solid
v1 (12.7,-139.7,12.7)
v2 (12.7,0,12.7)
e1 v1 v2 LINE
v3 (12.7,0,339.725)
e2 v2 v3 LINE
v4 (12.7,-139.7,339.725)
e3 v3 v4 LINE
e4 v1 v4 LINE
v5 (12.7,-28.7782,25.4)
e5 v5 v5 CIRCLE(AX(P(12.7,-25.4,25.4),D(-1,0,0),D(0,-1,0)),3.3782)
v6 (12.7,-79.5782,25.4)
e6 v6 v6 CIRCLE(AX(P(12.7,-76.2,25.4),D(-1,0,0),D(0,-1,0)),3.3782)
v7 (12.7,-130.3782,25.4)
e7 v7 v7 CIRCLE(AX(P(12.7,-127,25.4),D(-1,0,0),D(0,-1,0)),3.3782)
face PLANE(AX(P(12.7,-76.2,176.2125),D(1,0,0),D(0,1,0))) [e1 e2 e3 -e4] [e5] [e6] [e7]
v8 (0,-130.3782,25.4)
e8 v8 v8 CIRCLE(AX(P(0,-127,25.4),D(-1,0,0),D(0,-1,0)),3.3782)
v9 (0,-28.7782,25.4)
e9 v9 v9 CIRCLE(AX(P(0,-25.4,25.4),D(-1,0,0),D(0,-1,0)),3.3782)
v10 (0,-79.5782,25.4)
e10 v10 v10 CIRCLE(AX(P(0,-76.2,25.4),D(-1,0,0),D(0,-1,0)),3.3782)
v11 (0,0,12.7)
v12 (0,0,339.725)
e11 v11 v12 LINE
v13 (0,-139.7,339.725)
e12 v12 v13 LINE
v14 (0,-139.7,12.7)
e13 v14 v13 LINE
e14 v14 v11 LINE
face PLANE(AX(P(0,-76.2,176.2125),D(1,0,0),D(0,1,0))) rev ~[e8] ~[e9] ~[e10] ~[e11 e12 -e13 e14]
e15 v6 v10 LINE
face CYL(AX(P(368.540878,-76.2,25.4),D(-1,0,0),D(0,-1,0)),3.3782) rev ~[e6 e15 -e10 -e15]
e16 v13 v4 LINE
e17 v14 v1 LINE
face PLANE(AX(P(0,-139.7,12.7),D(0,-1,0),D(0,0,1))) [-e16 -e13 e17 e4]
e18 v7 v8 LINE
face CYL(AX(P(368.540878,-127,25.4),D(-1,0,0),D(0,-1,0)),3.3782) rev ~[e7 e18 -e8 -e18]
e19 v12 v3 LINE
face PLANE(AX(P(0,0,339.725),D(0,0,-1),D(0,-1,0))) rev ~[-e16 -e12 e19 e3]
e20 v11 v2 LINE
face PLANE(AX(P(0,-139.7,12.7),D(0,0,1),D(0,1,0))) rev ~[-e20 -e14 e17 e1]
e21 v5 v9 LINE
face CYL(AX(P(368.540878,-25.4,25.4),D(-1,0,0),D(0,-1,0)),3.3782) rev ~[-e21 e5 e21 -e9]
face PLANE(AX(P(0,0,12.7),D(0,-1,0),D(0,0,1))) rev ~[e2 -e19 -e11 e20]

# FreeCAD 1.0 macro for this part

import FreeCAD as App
import Part
import Sketcher
Q = App.Units.Quantity


def add_polygon(sketch, points):
    """Adds a closed chain of lines whose ends are joined by coincident constraints."""
    first, n = sketch.GeometryCount, len(points)
    for a, b in zip(points, points[1:] + points[:1]):
        sketch.addGeometry(Part.LineSegment(App.Vector(*a, 0), App.Vector(*b, 0)), False)
    for i in range(n):
        sketch.addConstraint(Sketcher.Constraint("Coincident", first + i, 2, first + (i + 1) % n, 1))

doc = App.newDocument("Part")
body = doc.addObject("PartDesign::Body", "Body")

# Sketch on YZ plane
sketch1 = doc.addObject("Sketcher::SketchObject", "Sketch")
body.addObject(sketch1)
sketch1.AttachmentSupport = (doc.YZ_Plane, [""])
sketch1.MapMode = "FlatFace"
add_polygon(sketch1, [(-140, 340), (-140, 13), (0, 13), (0, 340)])  # lines 0-3
sketch1.addConstraint([
    Sketcher.Constraint("Vertical", 0),
    Sketcher.Constraint("Horizontal", 1),
    Sketcher.Constraint("Vertical", 2),
    Sketcher.Constraint("Horizontal", 3),
    Sketcher.Constraint("PointOnObject", 1, 2, -2),
    Sketcher.Constraint("DistanceX", 1, 1, 1, 2, Q("5.5 in")),
    Sketcher.Constraint("DistanceY", -1, 1, 0, 2, Q("0.5 in")),
    Sketcher.Constraint("DistanceY", 0, 2, 0, 1, Q("12.875 in")),
])
pad1 = doc.addObject("PartDesign::Pad", "Pad")
body.addObject(pad1)
pad1.Profile = sketch1
pad1.Length = Q("0.5 in")

# Sketch on YZ plane
sketch2 = doc.addObject("Sketcher::SketchObject", "Sketch001")
body.addObject(sketch2)
sketch2.AttachmentSupport = (doc.YZ_Plane, [""])
sketch2.MapMode = "FlatFace"
sketch2.AttachmentOffset = App.Placement(App.Vector(0, 0, 0.5 * 25.4), App.Rotation())
sketch2.addGeometry([
    Part.Circle(App.Vector(-127, 25.4, 0), App.Vector(0, 0, 1), 3.4),
    Part.Circle(App.Vector(-76.2, 25.4, 0), App.Vector(0, 0, 1), 3.4),
    Part.Circle(App.Vector(-25.4, 25.4, 0), App.Vector(0, 0, 1), 3.4),
], False)
sketch2.addConstraint([
    Sketcher.Constraint("Equal", 0, 1),
    Sketcher.Constraint("Equal", 1, 2),
    Sketcher.Constraint("Horizontal", 0, 3, 1, 3),
    Sketcher.Constraint("Horizontal", 1, 3, 2, 3),
    Sketcher.Constraint("Diameter", 0, Q("0.266 in")),
    Sketcher.Constraint("DistanceX", 0, 3, -1, 1, Q("5 in")),
    Sketcher.Constraint("DistanceY", -1, 1, 0, 3, Q("1 in")),
    Sketcher.Constraint("DistanceX", 1, 3, -1, 1, Q("3 in")),
    Sketcher.Constraint("DistanceX", 2, 3, -1, 1, Q("1 in")),
])
doc.recompute()
hole = doc.addObject("PartDesign::Hole", "Hole")
body.addObject(hole)
hole.Profile = sketch2
hole.ThreadType = "None"
hole.Diameter = Q("0.266 in")
hole.DepthType = "ThroughAll"

doc.recompute()
